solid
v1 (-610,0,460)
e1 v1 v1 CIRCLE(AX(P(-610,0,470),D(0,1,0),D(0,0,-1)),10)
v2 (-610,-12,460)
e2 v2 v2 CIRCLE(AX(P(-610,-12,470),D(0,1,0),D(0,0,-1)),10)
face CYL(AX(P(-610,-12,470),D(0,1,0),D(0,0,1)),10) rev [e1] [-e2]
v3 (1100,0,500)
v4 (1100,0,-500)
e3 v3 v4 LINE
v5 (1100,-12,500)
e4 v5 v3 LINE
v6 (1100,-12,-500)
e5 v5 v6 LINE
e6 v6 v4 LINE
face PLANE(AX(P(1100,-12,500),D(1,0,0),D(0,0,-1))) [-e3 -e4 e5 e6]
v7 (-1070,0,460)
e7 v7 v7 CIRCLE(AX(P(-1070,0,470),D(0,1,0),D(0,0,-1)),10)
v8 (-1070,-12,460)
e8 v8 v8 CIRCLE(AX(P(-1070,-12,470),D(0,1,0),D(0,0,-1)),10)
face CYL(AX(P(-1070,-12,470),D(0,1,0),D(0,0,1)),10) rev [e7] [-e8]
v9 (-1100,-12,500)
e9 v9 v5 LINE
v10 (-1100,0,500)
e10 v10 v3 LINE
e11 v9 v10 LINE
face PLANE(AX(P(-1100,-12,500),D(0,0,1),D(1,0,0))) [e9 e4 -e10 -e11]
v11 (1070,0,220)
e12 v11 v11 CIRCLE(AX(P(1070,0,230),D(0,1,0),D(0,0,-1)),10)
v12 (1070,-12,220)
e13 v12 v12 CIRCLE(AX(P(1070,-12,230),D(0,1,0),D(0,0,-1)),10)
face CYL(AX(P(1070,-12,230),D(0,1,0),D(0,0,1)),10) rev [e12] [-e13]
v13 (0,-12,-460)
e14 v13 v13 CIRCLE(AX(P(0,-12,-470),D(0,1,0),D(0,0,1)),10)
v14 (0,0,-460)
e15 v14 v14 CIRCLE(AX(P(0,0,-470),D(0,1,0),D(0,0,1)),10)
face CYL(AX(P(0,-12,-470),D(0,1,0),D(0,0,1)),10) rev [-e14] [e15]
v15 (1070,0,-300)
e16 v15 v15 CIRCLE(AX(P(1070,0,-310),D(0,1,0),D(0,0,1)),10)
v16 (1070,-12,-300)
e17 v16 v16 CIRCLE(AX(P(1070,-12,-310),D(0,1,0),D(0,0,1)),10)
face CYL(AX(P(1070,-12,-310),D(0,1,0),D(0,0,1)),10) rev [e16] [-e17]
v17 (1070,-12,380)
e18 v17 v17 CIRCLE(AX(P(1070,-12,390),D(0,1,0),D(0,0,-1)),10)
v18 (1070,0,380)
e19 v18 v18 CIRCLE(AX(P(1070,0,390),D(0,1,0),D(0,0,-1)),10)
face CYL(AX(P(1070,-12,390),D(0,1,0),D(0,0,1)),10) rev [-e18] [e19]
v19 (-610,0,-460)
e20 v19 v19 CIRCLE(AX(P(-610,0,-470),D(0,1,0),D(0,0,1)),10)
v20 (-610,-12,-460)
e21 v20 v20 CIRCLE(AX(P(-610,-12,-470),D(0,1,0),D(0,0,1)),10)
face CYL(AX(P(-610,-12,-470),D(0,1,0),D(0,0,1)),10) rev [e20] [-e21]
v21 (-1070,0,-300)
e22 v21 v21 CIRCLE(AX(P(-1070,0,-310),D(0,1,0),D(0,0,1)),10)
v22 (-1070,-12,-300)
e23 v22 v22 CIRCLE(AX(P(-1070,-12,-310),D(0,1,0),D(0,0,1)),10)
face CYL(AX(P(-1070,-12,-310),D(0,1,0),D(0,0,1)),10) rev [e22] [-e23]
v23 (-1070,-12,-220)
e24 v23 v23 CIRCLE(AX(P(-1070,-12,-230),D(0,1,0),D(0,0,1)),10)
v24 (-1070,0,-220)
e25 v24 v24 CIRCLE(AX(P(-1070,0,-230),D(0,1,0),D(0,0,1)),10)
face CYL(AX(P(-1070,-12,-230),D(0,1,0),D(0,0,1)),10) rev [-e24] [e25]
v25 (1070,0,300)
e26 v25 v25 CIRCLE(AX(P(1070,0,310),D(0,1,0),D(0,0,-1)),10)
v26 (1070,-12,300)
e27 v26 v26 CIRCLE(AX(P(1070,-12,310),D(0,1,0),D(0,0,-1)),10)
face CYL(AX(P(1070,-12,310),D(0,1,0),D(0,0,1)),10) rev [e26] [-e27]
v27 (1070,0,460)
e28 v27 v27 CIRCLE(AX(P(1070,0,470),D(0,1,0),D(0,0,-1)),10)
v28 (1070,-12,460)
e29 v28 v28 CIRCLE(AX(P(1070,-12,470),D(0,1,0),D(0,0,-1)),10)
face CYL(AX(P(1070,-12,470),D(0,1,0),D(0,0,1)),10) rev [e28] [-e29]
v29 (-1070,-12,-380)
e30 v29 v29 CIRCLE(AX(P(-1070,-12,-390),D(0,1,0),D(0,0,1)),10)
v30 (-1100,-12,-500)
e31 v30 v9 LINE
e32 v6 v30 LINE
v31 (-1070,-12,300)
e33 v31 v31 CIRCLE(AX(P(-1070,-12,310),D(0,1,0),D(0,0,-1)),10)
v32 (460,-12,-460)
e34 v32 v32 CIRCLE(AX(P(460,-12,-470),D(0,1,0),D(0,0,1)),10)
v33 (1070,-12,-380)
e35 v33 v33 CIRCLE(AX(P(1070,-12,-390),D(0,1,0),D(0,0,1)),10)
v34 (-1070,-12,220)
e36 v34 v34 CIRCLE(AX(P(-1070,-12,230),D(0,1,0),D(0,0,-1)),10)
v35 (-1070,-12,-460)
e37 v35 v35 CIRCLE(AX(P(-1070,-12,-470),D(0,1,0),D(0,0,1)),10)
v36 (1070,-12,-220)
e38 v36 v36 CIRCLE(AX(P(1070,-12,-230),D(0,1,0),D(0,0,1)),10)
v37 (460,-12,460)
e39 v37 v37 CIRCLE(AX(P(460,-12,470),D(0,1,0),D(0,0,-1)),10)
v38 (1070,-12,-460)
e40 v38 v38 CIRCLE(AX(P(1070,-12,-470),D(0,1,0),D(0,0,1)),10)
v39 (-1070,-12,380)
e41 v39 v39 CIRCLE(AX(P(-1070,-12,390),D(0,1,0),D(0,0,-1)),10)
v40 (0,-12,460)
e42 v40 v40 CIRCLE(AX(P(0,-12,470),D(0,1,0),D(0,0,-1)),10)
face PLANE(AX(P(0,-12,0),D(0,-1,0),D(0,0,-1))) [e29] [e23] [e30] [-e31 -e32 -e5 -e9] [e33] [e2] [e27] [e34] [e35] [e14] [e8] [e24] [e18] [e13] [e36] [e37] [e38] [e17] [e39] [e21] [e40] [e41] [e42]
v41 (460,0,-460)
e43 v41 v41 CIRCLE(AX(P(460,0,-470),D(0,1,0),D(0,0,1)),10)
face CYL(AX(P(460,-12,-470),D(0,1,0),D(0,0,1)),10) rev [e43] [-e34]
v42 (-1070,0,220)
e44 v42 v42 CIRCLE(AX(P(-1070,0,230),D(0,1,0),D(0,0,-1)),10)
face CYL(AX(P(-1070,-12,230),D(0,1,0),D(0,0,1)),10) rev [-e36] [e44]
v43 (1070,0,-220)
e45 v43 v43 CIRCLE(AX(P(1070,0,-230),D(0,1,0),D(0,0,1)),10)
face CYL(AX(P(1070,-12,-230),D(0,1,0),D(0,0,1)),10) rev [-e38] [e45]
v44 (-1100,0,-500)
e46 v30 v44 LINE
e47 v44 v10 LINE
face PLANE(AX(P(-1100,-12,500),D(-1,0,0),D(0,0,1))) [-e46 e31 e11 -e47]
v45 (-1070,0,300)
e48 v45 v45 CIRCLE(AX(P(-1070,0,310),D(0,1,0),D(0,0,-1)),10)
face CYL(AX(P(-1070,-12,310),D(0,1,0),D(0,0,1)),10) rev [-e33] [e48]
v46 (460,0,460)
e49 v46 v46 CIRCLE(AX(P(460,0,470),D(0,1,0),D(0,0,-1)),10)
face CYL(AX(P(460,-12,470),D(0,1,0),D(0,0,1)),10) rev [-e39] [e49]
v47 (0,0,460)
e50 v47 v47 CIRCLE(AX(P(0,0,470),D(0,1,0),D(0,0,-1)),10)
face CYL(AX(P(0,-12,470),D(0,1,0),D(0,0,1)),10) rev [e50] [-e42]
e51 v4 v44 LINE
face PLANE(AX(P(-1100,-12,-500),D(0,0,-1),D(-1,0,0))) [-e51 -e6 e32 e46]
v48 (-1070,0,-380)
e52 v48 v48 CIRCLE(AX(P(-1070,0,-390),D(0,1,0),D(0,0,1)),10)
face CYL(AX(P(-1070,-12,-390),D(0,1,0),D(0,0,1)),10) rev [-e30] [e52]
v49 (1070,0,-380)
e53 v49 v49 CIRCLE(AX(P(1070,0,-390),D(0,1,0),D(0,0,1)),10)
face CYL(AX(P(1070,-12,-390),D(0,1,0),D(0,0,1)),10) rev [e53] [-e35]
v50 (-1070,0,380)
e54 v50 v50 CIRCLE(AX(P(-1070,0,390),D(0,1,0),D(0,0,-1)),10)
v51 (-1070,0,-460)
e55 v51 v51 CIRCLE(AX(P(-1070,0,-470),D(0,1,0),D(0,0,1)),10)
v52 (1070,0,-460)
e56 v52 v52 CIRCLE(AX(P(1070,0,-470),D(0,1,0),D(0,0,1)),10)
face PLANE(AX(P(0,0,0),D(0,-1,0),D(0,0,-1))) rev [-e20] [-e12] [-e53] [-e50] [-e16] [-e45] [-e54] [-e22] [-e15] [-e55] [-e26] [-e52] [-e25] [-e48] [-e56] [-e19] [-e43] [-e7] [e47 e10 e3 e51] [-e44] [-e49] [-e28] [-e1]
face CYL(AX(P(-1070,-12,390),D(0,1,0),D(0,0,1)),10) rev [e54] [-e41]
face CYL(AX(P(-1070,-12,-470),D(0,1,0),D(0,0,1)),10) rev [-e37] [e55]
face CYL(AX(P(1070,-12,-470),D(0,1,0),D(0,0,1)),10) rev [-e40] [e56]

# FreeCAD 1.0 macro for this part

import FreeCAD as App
import Part
import Sketcher

V = App.Vector
Q = App.Units.Quantity

doc = App.newDocument("Part")
body = doc.addObject("PartDesign::Body", "Body")

# Sketch on XZ plane
sketch1 = body.newObject("Sketcher::SketchObject", "Sketch")
sketch1.AttachmentSupport = (doc.getObject("XZ_Plane"), [""])
sketch1.MapMode = "FlatFace"
sketch1.addGeometry(Part.LineSegment(V(-1100, -500, 0), V(-1100, 500, 0)), False)
sketch1.addGeometry(Part.LineSegment(V(-1100, 500, 0), V(1100, 500, 0)), False)
sketch1.addGeometry(Part.LineSegment(V(1100, 500, 0), V(1100, -500, 0)), False)
sketch1.addGeometry(Part.LineSegment(V(1100, -500, 0), V(-1100, -500, 0)), False)
sketch1.addGeometry(Part.Circle(V(-1070, 470, 0), V(0, 0, 1), 10), False)
sketch1.addGeometry(Part.Circle(V(-1070, 390, 0), V(0, 0, 1), 10), False)
sketch1.addGeometry(Part.Circle(V(-610, 470, 0), V(0, 0, 1), 10), False)
sketch1.addGeometry(Part.Circle(V(-1070, 310, 0), V(0, 0, 1), 10), False)
sketch1.addGeometry(Part.Circle(V(-1070, 230, 0), V(0, 0, 1), 10), False)
sketch1.addGeometry(Part.Circle(V(0, 470, 0), V(0, 0, 1), 10), False)
sketch1.addGeometry(Part.Circle(V(460, 470, 0), V(0, 0, 1), 10), False)
sketch1.addGeometry(Part.Circle(V(1070, 470, 0), V(0, 0, 1), 10), False)
sketch1.addGeometry(Part.Circle(V(1070, 390, 0), V(0, 0, 1), 10), False)
sketch1.addGeometry(Part.Circle(V(1070, 310, 0), V(0, 0, 1), 10), False)
sketch1.addGeometry(Part.Circle(V(1070, 230, 0), V(0, 0, 1), 10), False)
sketch1.addGeometry(Part.Circle(V(-1070, -230, 0), V(0, 0, 1), 10), False)
sketch1.addGeometry(Part.Circle(V(-1070, -310, 0), V(0, 0, 1), 10), False)
sketch1.addGeometry(Part.Circle(V(-1070, -390, 0), V(0, 0, 1), 10), False)
sketch1.addGeometry(Part.Circle(V(-1070, -470, 0), V(0, 0, 1), 10), False)
sketch1.addGeometry(Part.Circle(V(-610, -470, 0), V(0, 0, 1), 10), False)
sketch1.addGeometry(Part.Circle(V(1070, -230, 0), V(0, 0, 1), 10), False)
sketch1.addGeometry(Part.Circle(V(0, -470, 0), V(0, 0, 1), 10), False)
sketch1.addGeometry(Part.Circle(V(460, -470, 0), V(0, 0, 1), 10), False)
sketch1.addGeometry(Part.Circle(V(1070, -310, 0), V(0, 0, 1), 10), False)
sketch1.addGeometry(Part.Circle(V(1070, -390, 0), V(0, 0, 1), 10), False)
sketch1.addGeometry(Part.Circle(V(1070, -470, 0), V(0, 0, 1), 10), False)
sketch1.addConstraint(Sketcher.Constraint("Coincident", 0, 2, 1, 1))
sketch1.addConstraint(Sketcher.Constraint("Coincident", 1, 2, 2, 1))
sketch1.addConstraint(Sketcher.Constraint("Coincident", 2, 2, 3, 1))
sketch1.addConstraint(Sketcher.Constraint("Coincident", 3, 2, 0, 1))
sketch1.addConstraint(Sketcher.Constraint("Vertical", 0))
sketch1.addConstraint(Sketcher.Constraint("Horizontal", 1))
sketch1.addConstraint(Sketcher.Constraint("Vertical", 2))
sketch1.addConstraint(Sketcher.Constraint("Horizontal", 3))
sketch1.addConstraint(Sketcher.Constraint("Equal", 4, 5))
sketch1.addConstraint(Sketcher.Constraint("Equal", 5, 6))
sketch1.addConstraint(Sketcher.Constraint("Equal", 6, 7))
sketch1.addConstraint(Sketcher.Constraint("Equal", 7, 8))
sketch1.addConstraint(Sketcher.Constraint("Equal", 8, 9))
sketch1.addConstraint(Sketcher.Constraint("Equal", 9, 10))
sketch1.addConstraint(Sketcher.Constraint("Equal", 10, 11))
sketch1.addConstraint(Sketcher.Constraint("Equal", 11, 12))
sketch1.addConstraint(Sketcher.Constraint("Equal", 12, 13))
sketch1.addConstraint(Sketcher.Constraint("Equal", 13, 14))
sketch1.addConstraint(Sketcher.Constraint("Equal", 14, 15))
sketch1.addConstraint(Sketcher.Constraint("Equal", 15, 16))
sketch1.addConstraint(Sketcher.Constraint("Equal", 16, 17))
sketch1.addConstraint(Sketcher.Constraint("Equal", 17, 18))
sketch1.addConstraint(Sketcher.Constraint("Equal", 18, 19))
sketch1.addConstraint(Sketcher.Constraint("Equal", 19, 20))
sketch1.addConstraint(Sketcher.Constraint("Equal", 20, 21))
sketch1.addConstraint(Sketcher.Constraint("Equal", 21, 22))
sketch1.addConstraint(Sketcher.Constraint("Equal", 22, 23))
sketch1.addConstraint(Sketcher.Constraint("Equal", 23, 24))
sketch1.addConstraint(Sketcher.Constraint("Equal", 24, 25))
sketch1.addConstraint(Sketcher.Constraint("Symmetric", 14, 3, 15, 3, -1, 1))
sketch1.addConstraint(Sketcher.Constraint("Symmetric", 13, 3, 16, 3, -1, 1))
sketch1.addConstraint(Sketcher.Constraint("Symmetric", 12, 3, 17, 3, -1, 1))
sketch1.addConstraint(Sketcher.Constraint("Symmetric", 11, 3, 18, 3, -1, 1))
sketch1.addConstraint(Sketcher.Constraint("Symmetric", 8, 3, 20, 3, -1, 1))
sketch1.addConstraint(Sketcher.Constraint("Symmetric", 9, 3, 21, 3, -1, 1))
sketch1.addConstraint(Sketcher.Constraint("Symmetric", 7, 3, 23, 3, -1, 1))
sketch1.addConstraint(Sketcher.Constraint("Symmetric", 5, 3, 24, 3, -1, 1))
sketch1.addConstraint(Sketcher.Constraint("Symmetric", 4, 3, 25, 3, -1, 1))
sketch1.addConstraint(Sketcher.Constraint("Symmetric", 0, 2, 2, 2, -1, 1))
sketch1.addConstraint(Sketcher.Constraint("Symmetric", 4, 3, 11, 3, -2))
sketch1.addConstraint(Sketcher.Constraint("Symmetric", 5, 3, 12, 3, -2))
sketch1.addConstraint(Sketcher.Constraint("Symmetric", 7, 3, 13, 3, -2))
sketch1.addConstraint(Sketcher.Constraint("Symmetric", 8, 3, 14, 3, -2))
sketch1.addConstraint(Sketcher.Constraint("Symmetric", 6, 3, 19, 3, -1))
sketch1.addConstraint(Sketcher.Constraint("Symmetric", 10, 3, 22, 3, -1))
sketch1.addConstraint(Sketcher.Constraint("PointOnObject", 9, 3, -2))
sketch1.addConstraint(Sketcher.Constraint("Horizontal", 4, 3, 6, 3))
sketch1.addConstraint(Sketcher.Constraint("Horizontal", 6, 3, 9, 3))
sketch1.addConstraint(Sketcher.Constraint("Horizontal", 9, 3, 10, 3))
sketch1.addConstraint(Sketcher.Constraint("Vertical", 4, 3, 5, 3))
sketch1.addConstraint(Sketcher.Constraint("Vertical", 5, 3, 7, 3))
sketch1.addConstraint(Sketcher.Constraint("Vertical", 7, 3, 8, 3))
sketch1.addConstraint(Sketcher.Constraint("Diameter", 4, Q("20 mm")))
sketch1.addConstraint(Sketcher.Constraint("DistanceX", 1, 1, 1, 2, Q("2200 mm")))
sketch1.addConstraint(Sketcher.Constraint("DistanceY", 0, 1, 0, 2, Q("1000 mm")))
sketch1.addConstraint(Sketcher.Constraint("DistanceX", 4, 3, -1, 1, Q("1070 mm")))
sketch1.addConstraint(Sketcher.Constraint("DistanceY", -1, 1, 4, 3, Q("470 mm")))
sketch1.addConstraint(Sketcher.Constraint("DistanceY", -1, 1, 5, 3, Q("390 mm")))
sketch1.addConstraint(Sketcher.Constraint("DistanceX", 6, 3, -1, 1, Q("610 mm")))
sketch1.addConstraint(Sketcher.Constraint("DistanceY", -1, 1, 7, 3, Q("310 mm")))
sketch1.addConstraint(Sketcher.Constraint("DistanceY", -1, 1, 8, 3, Q("230 mm")))
sketch1.addConstraint(Sketcher.Constraint("DistanceX", -1, 1, 10, 3, Q("460 mm")))
pad1 = body.newObject("PartDesign::Pad", "Pad")
pad1.Profile = sketch1
pad1.Length = 12

doc.recompute()
